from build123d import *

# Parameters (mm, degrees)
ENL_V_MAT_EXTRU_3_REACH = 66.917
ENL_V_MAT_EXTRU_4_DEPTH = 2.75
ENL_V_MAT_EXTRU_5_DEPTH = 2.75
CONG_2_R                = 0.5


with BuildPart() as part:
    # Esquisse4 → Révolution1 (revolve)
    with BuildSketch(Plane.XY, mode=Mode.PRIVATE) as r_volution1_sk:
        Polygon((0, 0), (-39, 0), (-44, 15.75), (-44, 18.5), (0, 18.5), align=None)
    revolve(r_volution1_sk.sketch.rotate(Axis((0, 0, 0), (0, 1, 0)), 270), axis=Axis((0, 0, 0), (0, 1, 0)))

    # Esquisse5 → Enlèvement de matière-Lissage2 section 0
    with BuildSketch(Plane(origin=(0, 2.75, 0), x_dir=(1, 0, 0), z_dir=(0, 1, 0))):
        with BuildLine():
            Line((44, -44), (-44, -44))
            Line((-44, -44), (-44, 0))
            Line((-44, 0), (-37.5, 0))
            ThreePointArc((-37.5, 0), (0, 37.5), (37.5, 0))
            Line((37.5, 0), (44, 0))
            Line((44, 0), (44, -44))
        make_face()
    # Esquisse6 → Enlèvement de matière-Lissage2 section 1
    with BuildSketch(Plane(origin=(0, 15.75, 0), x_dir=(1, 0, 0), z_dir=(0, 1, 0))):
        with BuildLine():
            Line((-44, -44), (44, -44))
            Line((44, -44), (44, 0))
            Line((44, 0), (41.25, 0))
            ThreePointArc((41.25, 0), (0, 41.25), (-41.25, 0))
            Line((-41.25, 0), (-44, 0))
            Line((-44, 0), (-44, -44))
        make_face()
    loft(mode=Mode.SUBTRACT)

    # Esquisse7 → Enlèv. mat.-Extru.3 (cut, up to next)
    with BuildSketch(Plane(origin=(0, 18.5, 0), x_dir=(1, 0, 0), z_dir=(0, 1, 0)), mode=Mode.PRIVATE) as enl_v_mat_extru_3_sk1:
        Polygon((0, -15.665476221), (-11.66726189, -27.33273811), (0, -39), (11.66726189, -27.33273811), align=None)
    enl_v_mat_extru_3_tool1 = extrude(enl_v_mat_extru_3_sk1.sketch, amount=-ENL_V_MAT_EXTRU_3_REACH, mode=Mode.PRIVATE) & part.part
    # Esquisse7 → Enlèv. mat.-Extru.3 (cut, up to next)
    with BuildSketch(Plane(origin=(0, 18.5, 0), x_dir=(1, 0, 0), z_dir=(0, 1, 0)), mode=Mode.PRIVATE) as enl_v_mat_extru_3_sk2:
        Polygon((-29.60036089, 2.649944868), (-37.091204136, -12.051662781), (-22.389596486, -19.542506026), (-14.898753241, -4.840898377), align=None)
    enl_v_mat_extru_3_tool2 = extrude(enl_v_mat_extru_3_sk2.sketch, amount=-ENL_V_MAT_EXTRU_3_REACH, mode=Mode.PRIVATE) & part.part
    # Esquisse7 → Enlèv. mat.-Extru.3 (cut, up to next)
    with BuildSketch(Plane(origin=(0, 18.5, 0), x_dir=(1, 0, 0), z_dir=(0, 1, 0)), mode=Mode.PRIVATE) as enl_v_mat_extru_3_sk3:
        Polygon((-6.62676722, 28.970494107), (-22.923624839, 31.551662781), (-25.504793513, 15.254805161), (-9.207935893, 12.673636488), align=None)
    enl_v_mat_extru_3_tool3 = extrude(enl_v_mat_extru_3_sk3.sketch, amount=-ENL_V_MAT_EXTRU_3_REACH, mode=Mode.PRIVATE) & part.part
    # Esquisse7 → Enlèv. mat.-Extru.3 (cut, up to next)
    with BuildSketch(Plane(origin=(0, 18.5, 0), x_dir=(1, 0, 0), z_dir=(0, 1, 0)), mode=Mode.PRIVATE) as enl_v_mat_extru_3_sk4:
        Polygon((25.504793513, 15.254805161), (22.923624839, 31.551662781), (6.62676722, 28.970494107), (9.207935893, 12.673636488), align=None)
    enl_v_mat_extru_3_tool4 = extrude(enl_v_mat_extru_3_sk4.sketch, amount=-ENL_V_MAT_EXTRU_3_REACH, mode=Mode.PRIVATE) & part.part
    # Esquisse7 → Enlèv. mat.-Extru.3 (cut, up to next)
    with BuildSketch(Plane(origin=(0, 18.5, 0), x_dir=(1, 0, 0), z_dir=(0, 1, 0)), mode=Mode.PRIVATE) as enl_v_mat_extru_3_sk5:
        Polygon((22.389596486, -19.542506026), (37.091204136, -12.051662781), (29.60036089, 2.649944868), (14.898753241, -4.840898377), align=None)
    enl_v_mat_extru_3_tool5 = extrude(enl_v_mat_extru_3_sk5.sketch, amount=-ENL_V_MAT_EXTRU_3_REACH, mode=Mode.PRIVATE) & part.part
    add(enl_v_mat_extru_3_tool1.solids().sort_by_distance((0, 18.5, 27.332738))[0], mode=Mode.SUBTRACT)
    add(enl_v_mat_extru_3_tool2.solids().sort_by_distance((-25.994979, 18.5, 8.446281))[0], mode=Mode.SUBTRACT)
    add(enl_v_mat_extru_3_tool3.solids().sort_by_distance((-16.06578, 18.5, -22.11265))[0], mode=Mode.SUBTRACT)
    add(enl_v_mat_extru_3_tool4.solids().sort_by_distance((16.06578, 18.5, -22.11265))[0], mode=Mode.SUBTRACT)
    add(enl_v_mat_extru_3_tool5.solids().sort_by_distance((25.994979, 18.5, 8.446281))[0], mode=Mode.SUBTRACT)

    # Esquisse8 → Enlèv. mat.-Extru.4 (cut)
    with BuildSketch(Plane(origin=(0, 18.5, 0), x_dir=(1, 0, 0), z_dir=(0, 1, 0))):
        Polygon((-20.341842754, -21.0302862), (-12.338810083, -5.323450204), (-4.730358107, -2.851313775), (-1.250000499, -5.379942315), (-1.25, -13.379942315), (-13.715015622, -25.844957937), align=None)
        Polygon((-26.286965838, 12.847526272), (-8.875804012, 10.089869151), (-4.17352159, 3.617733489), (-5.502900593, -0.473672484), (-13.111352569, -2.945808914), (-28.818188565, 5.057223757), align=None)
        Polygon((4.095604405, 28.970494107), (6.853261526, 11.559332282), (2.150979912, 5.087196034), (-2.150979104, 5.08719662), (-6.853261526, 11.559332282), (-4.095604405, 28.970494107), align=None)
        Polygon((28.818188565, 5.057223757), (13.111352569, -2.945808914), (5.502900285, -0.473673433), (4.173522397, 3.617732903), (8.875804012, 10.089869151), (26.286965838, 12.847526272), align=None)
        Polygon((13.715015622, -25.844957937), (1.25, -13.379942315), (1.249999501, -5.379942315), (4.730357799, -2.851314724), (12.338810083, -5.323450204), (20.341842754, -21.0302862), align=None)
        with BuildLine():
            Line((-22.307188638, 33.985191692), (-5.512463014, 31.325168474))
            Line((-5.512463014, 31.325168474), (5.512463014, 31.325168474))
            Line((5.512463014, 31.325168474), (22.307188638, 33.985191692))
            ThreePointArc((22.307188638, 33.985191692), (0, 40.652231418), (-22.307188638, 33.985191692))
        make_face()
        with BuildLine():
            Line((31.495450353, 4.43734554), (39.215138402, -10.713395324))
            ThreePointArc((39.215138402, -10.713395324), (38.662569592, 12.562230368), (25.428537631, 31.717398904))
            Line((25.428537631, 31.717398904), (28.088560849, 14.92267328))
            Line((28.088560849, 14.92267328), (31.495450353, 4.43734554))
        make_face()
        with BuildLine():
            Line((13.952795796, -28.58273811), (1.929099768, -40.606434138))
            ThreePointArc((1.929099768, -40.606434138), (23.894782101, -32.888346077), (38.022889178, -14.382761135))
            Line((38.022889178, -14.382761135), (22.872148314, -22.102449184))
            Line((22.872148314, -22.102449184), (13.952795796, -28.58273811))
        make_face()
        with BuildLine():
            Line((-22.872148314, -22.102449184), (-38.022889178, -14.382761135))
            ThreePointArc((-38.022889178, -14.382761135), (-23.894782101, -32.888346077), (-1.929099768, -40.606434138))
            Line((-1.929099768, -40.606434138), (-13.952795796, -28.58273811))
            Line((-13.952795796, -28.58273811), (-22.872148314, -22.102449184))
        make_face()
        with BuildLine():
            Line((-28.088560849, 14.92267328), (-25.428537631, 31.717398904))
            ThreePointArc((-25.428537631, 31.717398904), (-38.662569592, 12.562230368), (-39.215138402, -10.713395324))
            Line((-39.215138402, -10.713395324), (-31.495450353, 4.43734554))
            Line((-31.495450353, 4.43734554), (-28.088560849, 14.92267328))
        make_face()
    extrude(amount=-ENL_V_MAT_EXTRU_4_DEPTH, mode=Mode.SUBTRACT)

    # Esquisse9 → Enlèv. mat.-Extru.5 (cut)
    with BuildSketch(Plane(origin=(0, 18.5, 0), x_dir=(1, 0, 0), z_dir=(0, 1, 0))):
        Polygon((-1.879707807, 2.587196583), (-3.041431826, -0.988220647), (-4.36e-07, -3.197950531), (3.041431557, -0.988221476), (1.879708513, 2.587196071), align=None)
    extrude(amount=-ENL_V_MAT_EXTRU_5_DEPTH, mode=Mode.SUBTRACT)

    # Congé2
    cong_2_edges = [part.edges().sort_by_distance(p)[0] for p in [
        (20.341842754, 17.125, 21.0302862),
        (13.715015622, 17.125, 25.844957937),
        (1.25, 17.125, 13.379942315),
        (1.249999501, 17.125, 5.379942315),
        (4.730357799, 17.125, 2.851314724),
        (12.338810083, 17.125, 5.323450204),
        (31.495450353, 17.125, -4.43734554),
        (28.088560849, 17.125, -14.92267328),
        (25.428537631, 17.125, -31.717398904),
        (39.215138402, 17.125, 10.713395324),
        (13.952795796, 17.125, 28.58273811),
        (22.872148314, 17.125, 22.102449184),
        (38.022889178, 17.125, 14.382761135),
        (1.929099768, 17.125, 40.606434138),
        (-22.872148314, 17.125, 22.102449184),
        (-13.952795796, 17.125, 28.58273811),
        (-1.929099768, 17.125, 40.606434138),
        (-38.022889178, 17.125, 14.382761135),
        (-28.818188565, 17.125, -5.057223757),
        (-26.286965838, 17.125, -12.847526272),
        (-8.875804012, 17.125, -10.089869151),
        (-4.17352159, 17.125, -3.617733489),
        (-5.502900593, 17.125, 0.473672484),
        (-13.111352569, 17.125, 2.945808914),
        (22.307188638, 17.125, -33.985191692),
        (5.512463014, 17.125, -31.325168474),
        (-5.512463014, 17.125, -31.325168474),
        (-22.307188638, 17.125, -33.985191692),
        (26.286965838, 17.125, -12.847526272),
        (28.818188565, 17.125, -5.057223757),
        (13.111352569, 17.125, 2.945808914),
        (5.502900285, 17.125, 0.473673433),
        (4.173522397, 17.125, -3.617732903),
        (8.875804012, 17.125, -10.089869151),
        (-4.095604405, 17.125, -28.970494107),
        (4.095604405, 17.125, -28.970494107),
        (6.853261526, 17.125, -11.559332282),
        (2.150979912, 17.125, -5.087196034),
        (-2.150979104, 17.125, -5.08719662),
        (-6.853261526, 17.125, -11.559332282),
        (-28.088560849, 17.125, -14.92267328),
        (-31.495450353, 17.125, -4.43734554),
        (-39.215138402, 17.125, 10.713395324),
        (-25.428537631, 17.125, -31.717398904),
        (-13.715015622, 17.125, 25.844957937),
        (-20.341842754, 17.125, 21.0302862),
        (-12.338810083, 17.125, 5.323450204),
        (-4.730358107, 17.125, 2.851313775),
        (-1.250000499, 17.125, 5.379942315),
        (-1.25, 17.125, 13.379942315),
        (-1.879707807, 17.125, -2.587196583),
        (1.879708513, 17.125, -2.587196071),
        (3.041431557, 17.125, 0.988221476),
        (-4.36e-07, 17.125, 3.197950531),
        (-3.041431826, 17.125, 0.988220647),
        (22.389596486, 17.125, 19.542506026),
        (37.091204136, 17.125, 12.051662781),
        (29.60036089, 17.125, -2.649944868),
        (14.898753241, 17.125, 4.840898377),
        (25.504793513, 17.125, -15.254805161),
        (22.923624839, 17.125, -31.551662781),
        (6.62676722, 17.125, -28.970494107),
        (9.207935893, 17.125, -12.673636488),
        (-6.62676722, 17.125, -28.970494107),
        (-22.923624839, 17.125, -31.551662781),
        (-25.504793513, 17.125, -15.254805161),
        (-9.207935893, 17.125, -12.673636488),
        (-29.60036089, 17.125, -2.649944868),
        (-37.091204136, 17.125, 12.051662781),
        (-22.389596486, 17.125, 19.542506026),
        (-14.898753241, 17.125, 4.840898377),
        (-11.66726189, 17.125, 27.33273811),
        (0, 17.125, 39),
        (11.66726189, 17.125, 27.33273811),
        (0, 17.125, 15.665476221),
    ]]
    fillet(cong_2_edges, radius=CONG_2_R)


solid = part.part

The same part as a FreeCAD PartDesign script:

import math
import FreeCAD as App
import Part
import Sketcher
Q = App.Units.Quantity


def edges_at(feature, points):
    """Names of the edges that pass closest to the given points."""
    edges = feature.Shape.Edges
    near = lambda p: min(range(len(edges)), key=lambda i: edges[i].distToShape(Part.Vertex(*p))[0])
    return sorted({f"Edge{near(p) + 1}" for p in points})

doc = App.newDocument("Part")
body = doc.addObject("PartDesign::Body", "Body")

sketch1 = doc.addObject("Sketcher::SketchObject", "Sketch")
body.addObject(sketch1)
sketch1.AttachmentSupport = (doc.XY_Plane, [""])
sketch1.MapMode = "FlatFace"
sketch1.addGeometry([
    Part.LineSegment(App.Vector(-39, 0, 0), App.Vector(0, 0, 0)),
    Part.LineSegment(App.Vector(0, 0, 0), App.Vector(0, 18.5, 0)),
    Part.LineSegment(App.Vector(0, 18.5, 0), App.Vector(-44, 18.5, 0)),
    Part.LineSegment(App.Vector(-44, 18.5, 0), App.Vector(-44, 15.8, 0)),
    Part.LineSegment(App.Vector(-44, 15.8, 0), App.Vector(-39, 0, 0)),
], False)
sketch1.addConstraint([
    Sketcher.Constraint("Coincident", 0, 2, 1, 1),
    Sketcher.Constraint("Coincident", 1, 2, 2, 1),
    Sketcher.Constraint("Coincident", 2, 2, 3, 1),
    Sketcher.Constraint("Coincident", 3, 2, 4, 1),
    Sketcher.Constraint("Coincident", 4, 2, 0, 1),
    Sketcher.Constraint("Horizontal", 0),
    Sketcher.Constraint("Vertical", 1),
    Sketcher.Constraint("Horizontal", 2),
    Sketcher.Constraint("Vertical", 3),
    Sketcher.Constraint("Coincident", 0, 2, -1, 1),
    Sketcher.Constraint("DistanceX", 0, 1, 0, 2, Q("39 mm")),
    Sketcher.Constraint("DistanceX", 2, 2, 2, 1, Q("44 mm")),
    Sketcher.Constraint("DistanceY", 1, 1, 1, 2, Q("18.5 mm")),
    Sketcher.Constraint("DistanceY", 3, 2, 3, 1, Q("2.75 mm")),
])
revolution = doc.addObject("PartDesign::Revolution", "Revolution")
body.addObject(revolution)
revolution.Profile = sketch1
revolution.ReferenceAxis = (sketch1, ["V_Axis"])
revolution.Angle = 360

sketch2 = doc.addObject("Sketcher::SketchObject", "Sketch001")
body.addObject(sketch2)
sketch2.AttachmentSupport = (doc.XZ_Plane, [""])
sketch2.MapMode = "FlatFace"
sketch2.AttachmentOffset = App.Placement(App.Vector(0, 0, -2.75), App.Rotation())
sketch2.addGeometry([
    Part.LineSegment(App.Vector(-44, 44, 0), App.Vector(44, 44, 0)),
    Part.LineSegment(App.Vector(44, 44, 0), App.Vector(44, 0, 0)),
    Part.LineSegment(App.Vector(44, 0, 0), App.Vector(38, 0, 0)),
    Part.ArcOfCircle(Part.Circle(App.Vector(0, 0, 0), App.Vector(0, 0, 1), 38), math.radians(180), math.radians(360)),
    Part.LineSegment(App.Vector(-38, 0, 0), App.Vector(-44, 0, 0)),
    Part.LineSegment(App.Vector(-44, 0, 0), App.Vector(-44, 44, 0)),
], False)
sketch2.addConstraint([
    Sketcher.Constraint("Coincident", 0, 2, 1, 1),
    Sketcher.Constraint("Coincident", 1, 2, 2, 1),
    Sketcher.Constraint("Coincident", 2, 2, 3, 2),
    Sketcher.Constraint("Coincident", 3, 1, 4, 1),
    Sketcher.Constraint("Coincident", 4, 2, 5, 1),
    Sketcher.Constraint("Coincident", 5, 2, 0, 1),
    Sketcher.Constraint("Horizontal", 0),
    Sketcher.Constraint("Vertical", 1),
    Sketcher.Constraint("Horizontal", 2),
    Sketcher.Constraint("Horizontal", 4),
    Sketcher.Constraint("Vertical", 5),
    Sketcher.Constraint("Coincident", 3, 3, -1, 1),
    Sketcher.Constraint("Symmetric", 1, 2, 4, 2, -1, 1),
    Sketcher.Constraint("PointOnObject", 1, 2, -1),
    Sketcher.Constraint("Radius", 3, Q("37.5 mm")),
    Sketcher.Constraint("DistanceX", 0, 1, 0, 2, Q("88 mm")),
    Sketcher.Constraint("DistanceY", 1, 2, 1, 1, Q("44 mm")),
])

sketch3 = doc.addObject("Sketcher::SketchObject", "Sketch002")
body.addObject(sketch3)
sketch3.AttachmentSupport = (doc.XZ_Plane, [""])
sketch3.MapMode = "FlatFace"
sketch3.AttachmentOffset = App.Placement(App.Vector(0, 0, -15.75), App.Rotation())
sketch3.addGeometry([
    Part.LineSegment(App.Vector(-44, 44, 0), App.Vector(44, 44, 0)),
    Part.LineSegment(App.Vector(44, 44, 0), App.Vector(44, 0, 0)),
    Part.LineSegment(App.Vector(44, 0, 0), App.Vector(41.2, 0, 0)),
    Part.ArcOfCircle(Part.Circle(App.Vector(0, 0, 0), App.Vector(0, 0, 1), 41.2), math.radians(180), math.radians(360)),
    Part.LineSegment(App.Vector(-41.2, 0, 0), App.Vector(-44, 0, 0)),
    Part.LineSegment(App.Vector(-44, 0, 0), App.Vector(-44, 44, 0)),
], False)
sketch3.addConstraint([
    Sketcher.Constraint("Coincident", 0, 2, 1, 1),
    Sketcher.Constraint("Coincident", 1, 2, 2, 1),
    Sketcher.Constraint("Coincident", 2, 2, 3, 2),
    Sketcher.Constraint("Coincident", 3, 1, 4, 1),
    Sketcher.Constraint("Coincident", 4, 2, 5, 1),
    Sketcher.Constraint("Coincident", 5, 2, 0, 1),
    Sketcher.Constraint("Horizontal", 0),
    Sketcher.Constraint("Vertical", 1),
    Sketcher.Constraint("Horizontal", 2),
    Sketcher.Constraint("Horizontal", 4),
    Sketcher.Constraint("Vertical", 5),
    Sketcher.Constraint("Coincident", 3, 3, -1, 1),
    Sketcher.Constraint("Symmetric", 1, 2, 4, 2, -1, 1),
    Sketcher.Constraint("PointOnObject", 1, 2, -1),
    Sketcher.Constraint("DistanceX", 0, 1, 0, 2, Q("88 mm")),
    Sketcher.Constraint("DistanceY", 1, 2, 1, 1, Q("44 mm")),
    Sketcher.Constraint("Radius", 3, Q("41.25 mm")),
])

subtractiveloft = doc.addObject("PartDesign::SubtractiveLoft", "SubtractiveLoft")
body.addObject(subtractiveloft)
subtractiveloft.Profile = sketch2
subtractiveloft.Sections = [sketch3]

sketch4 = doc.addObject("Sketcher::SketchObject", "Sketch003")
body.addObject(sketch4)
sketch4.AttachmentSupport = (doc.XZ_Plane, [""])
sketch4.MapMode = "FlatFace"
sketch4.AttachmentOffset = App.Placement(App.Vector(0, 0, -18.5), App.Rotation())
sketch4.addGeometry([
    Part.LineSegment(App.Vector(0, 16, 0), App.Vector(-12, 27, 0)),
    Part.LineSegment(App.Vector(-12, 27, 0), App.Vector(0, 39, 0)),
    Part.LineSegment(App.Vector(0, 39, 0), App.Vector(12, 27, 0)),
    Part.LineSegment(App.Vector(12, 27, 0), App.Vector(0, 16, 0)),
], False)
sketch4.addConstraint([
    Sketcher.Constraint("Coincident", 0, 2, 1, 1),
    Sketcher.Constraint("Coincident", 1, 2, 2, 1),
    Sketcher.Constraint("Coincident", 2, 2, 3, 1),
    Sketcher.Constraint("Coincident", 3, 2, 0, 1),
    Sketcher.Constraint("Symmetric", 0, 2, 2, 2, -2),
    Sketcher.Constraint("PointOnObject", 1, 2, -2),
    Sketcher.Constraint("PointOnObject", 3, 2, -2),
    Sketcher.Constraint("Perpendicular", 0, 1),
    Sketcher.Constraint("Perpendicular", 1, 2),
    Sketcher.Constraint("DistanceY", -1, 1, 1, 2, Q("39 mm")),
    Sketcher.Constraint("Distance", 0, Q("16.5 mm")),
])
pocket1 = doc.addObject("PartDesign::Pocket", "Pocket")
body.addObject(pocket1)
pocket1.Profile = sketch4
pocket1.Type = "UpToFirst"
pocket1.Reversed = True

sketch5 = doc.addObject("Sketcher::SketchObject", "Sketch004")
body.addObject(sketch5)
sketch5.AttachmentSupport = (doc.XZ_Plane, [""])
sketch5.MapMode = "FlatFace"
sketch5.AttachmentOffset = App.Placement(App.Vector(0, 0, -18.5), App.Rotation())
sketch5.addGeometry([
    Part.LineSegment(App.Vector(-30, -3, 0), App.Vector(-37, 12, 0)),
    Part.LineSegment(App.Vector(-37, 12, 0), App.Vector(-22, 20, 0)),
    Part.LineSegment(App.Vector(-22, 20, 0), App.Vector(-15, 5, 0)),
    Part.LineSegment(App.Vector(-15, 5, 0), App.Vector(-30, -3, 0)),
], False)
sketch5.addConstraint([
    Sketcher.Constraint("Coincident", 0, 2, 1, 1),
    Sketcher.Constraint("Coincident", 1, 2, 2, 1),
    Sketcher.Constraint("Coincident", 2, 2, 3, 1),
    Sketcher.Constraint("Coincident", 3, 2, 0, 1),
    Sketcher.Constraint("Perpendicular", 0, 1),
    Sketcher.Constraint("Perpendicular", 1, 2),
    Sketcher.Constraint("Perpendicular", 2, 3),
    Sketcher.Constraint("Equal", 0, 1),
    Sketcher.Constraint("Angle", 0, Q("117 deg")),
    Sketcher.Constraint("Distance", 0, Q("16.5 mm")),
    Sketcher.Constraint("DistanceY", -1, 1, 2, 2, Q("4.840898 mm")),
    Sketcher.Constraint("DistanceX", 3, 2, -1, 1, Q("29.600361 mm")),
])
pocket2 = doc.addObject("PartDesign::Pocket", "Pocket001")
body.addObject(pocket2)
pocket2.Profile = sketch5
pocket2.Type = "UpToFirst"
pocket2.Reversed = True

sketch6 = doc.addObject("Sketcher::SketchObject", "Sketch005")
body.addObject(sketch6)
sketch6.AttachmentSupport = (doc.XZ_Plane, [""])
sketch6.MapMode = "FlatFace"
sketch6.AttachmentOffset = App.Placement(App.Vector(0, 0, -18.5), App.Rotation())
sketch6.addGeometry([
    Part.LineSegment(App.Vector(-7, -29, 0), App.Vector(-23, -32, 0)),
    Part.LineSegment(App.Vector(-23, -32, 0), App.Vector(-26, -15, 0)),
    Part.LineSegment(App.Vector(-26, -15, 0), App.Vector(-9, -13, 0)),
    Part.LineSegment(App.Vector(-9, -13, 0), App.Vector(-7, -29, 0)),
], False)
sketch6.addConstraint([
    Sketcher.Constraint("Coincident", 0, 2, 1, 1),
    Sketcher.Constraint("Coincident", 1, 2, 2, 1),
    Sketcher.Constraint("Coincident", 2, 2, 3, 1),
    Sketcher.Constraint("Coincident", 3, 2, 0, 1),
    Sketcher.Constraint("Perpendicular", 0, 1),
    Sketcher.Constraint("Perpendicular", 1, 2),
    Sketcher.Constraint("Perpendicular", 2, 3),
    Sketcher.Constraint("Equal", 0, 1),
    Sketcher.Constraint("Angle", 0, Q("-171 deg")),
    Sketcher.Constraint("Distance", 0, Q("16.5 mm")),
    Sketcher.Constraint("DistanceX", 0, 2, -1, 1, Q("22.923625 mm")),
    Sketcher.Constraint("DistanceY", 0, 2, -1, 1, Q("31.551663 mm")),
])
pocket3 = doc.addObject("PartDesign::Pocket", "Pocket002")
body.addObject(pocket3)
pocket3.Profile = sketch6
pocket3.Type = "UpToFirst"
pocket3.Reversed = True

sketch7 = doc.addObject("Sketcher::SketchObject", "Sketch006")
body.addObject(sketch7)
sketch7.AttachmentSupport = (doc.XZ_Plane, [""])
sketch7.MapMode = "FlatFace"
sketch7.AttachmentOffset = App.Placement(App.Vector(0, 0, -18.5), App.Rotation())
sketch7.addGeometry([
    Part.LineSegment(App.Vector(26, -15, 0), App.Vector(23, -32, 0)),
    Part.LineSegment(App.Vector(23, -32, 0), App.Vector(7, -29, 0)),
    Part.LineSegment(App.Vector(7, -29, 0), App.Vector(9, -13, 0)),
    Part.LineSegment(App.Vector(9, -13, 0), App.Vector(26, -15, 0)),
], False)
sketch7.addConstraint([
    Sketcher.Constraint("Coincident", 0, 2, 1, 1),
    Sketcher.Constraint("Coincident", 1, 2, 2, 1),
    Sketcher.Constraint("Coincident", 2, 2, 3, 1),
    Sketcher.Constraint("Coincident", 3, 2, 0, 1),
    Sketcher.Constraint("Perpendicular", 0, 1),
    Sketcher.Constraint("Perpendicular", 1, 2),
    Sketcher.Constraint("Perpendicular", 2, 3),
    Sketcher.Constraint("Equal", 0, 1),
    Sketcher.Constraint("Angle", 0, Q("-99 deg")),
    Sketcher.Constraint("Distance", 0, Q("16.5 mm")),
    Sketcher.Constraint("DistanceX", -1, 1, 0, 2, Q("22.923625 mm")),
    Sketcher.Constraint("DistanceY", 0, 2, -1, 1, Q("31.551663 mm")),
])
pocket4 = doc.addObject("PartDesign::Pocket", "Pocket003")
body.addObject(pocket4)
pocket4.Profile = sketch7
pocket4.Type = "UpToFirst"
pocket4.Reversed = True

sketch8 = doc.addObject("Sketcher::SketchObject", "Sketch007")
body.addObject(sketch8)
sketch8.AttachmentSupport = (doc.XZ_Plane, [""])
sketch8.MapMode = "FlatFace"
sketch8.AttachmentOffset = App.Placement(App.Vector(0, 0, -18.5), App.Rotation())
sketch8.addGeometry([
    Part.LineSegment(App.Vector(22, 20, 0), App.Vector(37, 12, 0)),
    Part.LineSegment(App.Vector(37, 12, 0), App.Vector(30, -3, 0)),
    Part.LineSegment(App.Vector(30, -3, 0), App.Vector(15, 5, 0)),
    Part.LineSegment(App.Vector(15, 5, 0), App.Vector(22, 20, 0)),
], False)
sketch8.addConstraint([
    Sketcher.Constraint("Coincident", 0, 2, 1, 1),
    Sketcher.Constraint("Coincident", 1, 2, 2, 1),
    Sketcher.Constraint("Coincident", 2, 2, 3, 1),
    Sketcher.Constraint("Coincident", 3, 2, 0, 1),
    Sketcher.Constraint("Perpendicular", 0, 1),
    Sketcher.Constraint("Perpendicular", 1, 2),
    Sketcher.Constraint("Perpendicular", 2, 3),
    Sketcher.Constraint("Equal", 0, 1),
    Sketcher.Constraint("Angle", 0, Q("-27 deg")),
    Sketcher.Constraint("Distance", 0, Q("16.5 mm")),
    Sketcher.Constraint("DistanceY", -1, 1, 2, 2, Q("4.840898 mm")),
    Sketcher.Constraint("DistanceX", -1, 1, 1, 2, Q("29.600361 mm")),
])
pocket5 = doc.addObject("PartDesign::Pocket", "Pocket004")
body.addObject(pocket5)
pocket5.Profile = sketch8
pocket5.Type = "UpToFirst"
pocket5.Reversed = True

sketch9 = doc.addObject("Sketcher::SketchObject", "Sketch008")
body.addObject(sketch9)
sketch9.AttachmentSupport = (doc.XZ_Plane, [""])
sketch9.MapMode = "FlatFace"
sketch9.AttachmentOffset = App.Placement(App.Vector(0, 0, -18.5), App.Rotation())
sketch9.addGeometry([
    Part.LineSegment(App.Vector(-12.3, 5.3, 0), App.Vector(-20.3, 21, 0)),
    Part.LineSegment(App.Vector(-20.3, 21, 0), App.Vector(-13.7, 25.8, 0)),
    Part.LineSegment(App.Vector(-13.7, 25.8, 0), App.Vector(-1.2, 13.4, 0)),
    Part.LineSegment(App.Vector(-1.2, 13.4, 0), App.Vector(-1.3, 5.4, 0)),
    Part.LineSegment(App.Vector(-1.3, 5.4, 0), App.Vector(-4.7, 2.9, 0)),
    Part.LineSegment(App.Vector(-4.7, 2.9, 0), App.Vector(-12.3, 5.3, 0)),
    Part.LineSegment(App.Vector(-8.9, -10.1, 0), App.Vector(-26.3, -12.8, 0)),
    Part.LineSegment(App.Vector(-26.3, -12.8, 0), App.Vector(-28.8, -5.1, 0)),
    Part.LineSegment(App.Vector(-28.8, -5.1, 0), App.Vector(-13.1, 2.9, 0)),
    Part.LineSegment(App.Vector(-13.1, 2.9, 0), App.Vector(-5.5, 0.5, 0)),
    Part.LineSegment(App.Vector(-5.5, 0.5, 0), App.Vector(-4.2, -3.6, 0)),
    Part.LineSegment(App.Vector(-4.2, -3.6, 0), App.Vector(-8.9, -10.1, 0)),
    Part.LineSegment(App.Vector(6.9, -11.6, 0), App.Vector(4.1, -29, 0)),
    Part.LineSegment(App.Vector(4.1, -29, 0), App.Vector(-4.1, -29, 0)),
    Part.LineSegment(App.Vector(-4.1, -29, 0), App.Vector(-6.9, -11.6, 0)),
    Part.LineSegment(App.Vector(-6.9, -11.6, 0), App.Vector(-2.2, -5.1, 0)),
    Part.LineSegment(App.Vector(-2.2, -5.1, 0), App.Vector(2.2, -5.1, 0)),
    Part.LineSegment(App.Vector(2.2, -5.1, 0), App.Vector(6.9, -11.6, 0)),
    Part.LineSegment(App.Vector(13.1, 2.9, 0), App.Vector(28.8, -5.1, 0)),
    Part.LineSegment(App.Vector(28.8, -5.1, 0), App.Vector(26.3, -12.8, 0)),
    Part.LineSegment(App.Vector(26.3, -12.8, 0), App.Vector(8.9, -10.1, 0)),
    Part.LineSegment(App.Vector(8.9, -10.1, 0), App.Vector(4.2, -3.6, 0)),
    Part.LineSegment(App.Vector(4.2, -3.6, 0), App.Vector(5.5, 0.5, 0)),
    Part.LineSegment(App.Vector(5.5, 0.5, 0), App.Vector(13.1, 2.9, 0)),
    Part.LineSegment(App.Vector(1.2, 13.4, 0), App.Vector(13.7, 25.8, 0)),
    Part.LineSegment(App.Vector(13.7, 25.8, 0), App.Vector(20.3, 21, 0)),
    Part.LineSegment(App.Vector(20.3, 21, 0), App.Vector(12.3, 5.3, 0)),
    Part.LineSegment(App.Vector(12.3, 5.3, 0), App.Vector(4.7, 2.9, 0)),
    Part.LineSegment(App.Vector(4.7, 2.9, 0), App.Vector(1.2, 5.4, 0)),
    Part.LineSegment(App.Vector(1.2, 5.4, 0), App.Vector(1.2, 13.4, 0)),
    Part.LineSegment(App.Vector(-22.3, -34, 0), App.Vector(-5.5, -31.3, 0)),
    Part.LineSegment(App.Vector(-5.5, -31.3, 0), App.Vector(5.5, -31.3, 0)),
    Part.LineSegment(App.Vector(5.5, -31.3, 0), App.Vector(22.3, -34, 0)),
    Part.ArcOfCircle(Part.Circle(App.Vector(0, 0, 0), App.Vector(0, 0, 1), 40.7), math.radians(-123), math.radians(-57)),
    Part.LineSegment(App.Vector(31.5, -4.4, 0), App.Vector(39.2, 10.7, 0)),
    Part.ArcOfCircle(Part.Circle(App.Vector(0, 0, 0), App.Vector(0, 0, 1), 40.7), math.radians(-51), math.radians(15)),
    Part.LineSegment(App.Vector(25.4, -31.7, 0), App.Vector(28.1, -14.9, 0)),
    Part.LineSegment(App.Vector(28.1, -14.9, 0), App.Vector(31.5, -4.4, 0)),
    Part.LineSegment(App.Vector(14, 28.6, 0), App.Vector(1.9, 40.6, 0)),
    Part.ArcOfCircle(Part.Circle(App.Vector(0, 0, 0), App.Vector(0, 0, 1), 40.7), math.radians(21), math.radians(87)),
    Part.LineSegment(App.Vector(38, 14.4, 0), App.Vector(22.9, 22.1, 0)),
    Part.LineSegment(App.Vector(22.9, 22.1, 0), App.Vector(14, 28.6, 0)),
    Part.LineSegment(App.Vector(-22.9, 22.1, 0), App.Vector(-38, 14.4, 0)),
    Part.ArcOfCircle(Part.Circle(App.Vector(0, 0, 0), App.Vector(0, 0, 1), 40.7), math.radians(93), math.radians(159)),
    Part.LineSegment(App.Vector(-1.9, 40.6, 0), App.Vector(-14, 28.6, 0)),
    Part.LineSegment(App.Vector(-14, 28.6, 0), App.Vector(-22.9, 22.1, 0)),
    Part.LineSegment(App.Vector(-28.1, -14.9, 0), App.Vector(-25.4, -31.7, 0)),
    Part.ArcOfCircle(Part.Circle(App.Vector(0, 0, 0), App.Vector(0, 0, 1), 40.7), math.radians(165), math.radians(231)),
    Part.LineSegment(App.Vector(-39.2, 10.7, 0), App.Vector(-31.5, -4.4, 0)),
    Part.LineSegment(App.Vector(-31.5, -4.4, 0), App.Vector(-28.1, -14.9, 0)),
], False)
sketch9.addConstraint([
    Sketcher.Constraint("Coincident", 0, 2, 1, 1),
    Sketcher.Constraint("Coincident", 1, 2, 2, 1),
    Sketcher.Constraint("Coincident", 2, 2, 3, 1),
    Sketcher.Constraint("Coincident", 3, 2, 4, 1),
    Sketcher.Constraint("Coincident", 4, 2, 5, 1),
    Sketcher.Constraint("Coincident", 5, 2, 0, 1),
    Sketcher.Constraint("Coincident", 6, 2, 7, 1),
    Sketcher.Constraint("Coincident", 7, 2, 8, 1),
    Sketcher.Constraint("Coincident", 8, 2, 9, 1),
    Sketcher.Constraint("Coincident", 9, 2, 10, 1),
    Sketcher.Constraint("Coincident", 10, 2, 11, 1),
    Sketcher.Constraint("Coincident", 11, 2, 6, 1),
    Sketcher.Constraint("Coincident", 12, 2, 13, 1),
    Sketcher.Constraint("Coincident", 13, 2, 14, 1),
    Sketcher.Constraint("Coincident", 14, 2, 15, 1),
    Sketcher.Constraint("Coincident", 15, 2, 16, 1),
    Sketcher.Constraint("Coincident", 16, 2, 17, 1),
    Sketcher.Constraint("Coincident", 17, 2, 12, 1),
    Sketcher.Constraint("Coincident", 18, 2, 19, 1),
    Sketcher.Constraint("Coincident", 19, 2, 20, 1),
    Sketcher.Constraint("Coincident", 20, 2, 21, 1),
    Sketcher.Constraint("Coincident", 21, 2, 22, 1),
    Sketcher.Constraint("Coincident", 22, 2, 23, 1),
    Sketcher.Constraint("Coincident", 23, 2, 18, 1),
    Sketcher.Constraint("Coincident", 24, 2, 25, 1),
    Sketcher.Constraint("Coincident", 25, 2, 26, 1),
    Sketcher.Constraint("Coincident", 26, 2, 27, 1),
    Sketcher.Constraint("Coincident", 27, 2, 28, 1),
    Sketcher.Constraint("Coincident", 28, 2, 29, 1),
    Sketcher.Constraint("Coincident", 29, 2, 24, 1),
    Sketcher.Constraint("Coincident", 30, 2, 31, 1),
    Sketcher.Constraint("Coincident", 31, 2, 32, 1),
    Sketcher.Constraint("Coincident", 32, 2, 33, 2),
    Sketcher.Constraint("Coincident", 33, 1, 30, 1),
    Sketcher.Constraint("Coincident", 34, 2, 35, 2),
    Sketcher.Constraint("Coincident", 35, 1, 36, 1),
    Sketcher.Constraint("Coincident", 36, 2, 37, 1),
    Sketcher.Constraint("Coincident", 37, 2, 34, 1),
    Sketcher.Constraint("Coincident", 38, 2, 39, 2),
    Sketcher.Constraint("Coincident", 39, 1, 40, 1),
    Sketcher.Constraint("Coincident", 40, 2, 41, 1),
    Sketcher.Constraint("Coincident", 41, 2, 38, 1),
    Sketcher.Constraint("Coincident", 42, 2, 43, 2),
    Sketcher.Constraint("Coincident", 43, 1, 44, 1),
    Sketcher.Constraint("Coincident", 44, 2, 45, 1),
    Sketcher.Constraint("Coincident", 45, 2, 42, 1),
    Sketcher.Constraint("Coincident", 46, 2, 47, 2),
    Sketcher.Constraint("Coincident", 47, 1, 48, 1),
    Sketcher.Constraint("Coincident", 48, 2, 49, 1),
    Sketcher.Constraint("Coincident", 49, 2, 46, 1),
    Sketcher.Constraint("Vertical", 3),
    Sketcher.Constraint("Horizontal", 13),
    Sketcher.Constraint("Horizontal", 16),
    Sketcher.Constraint("Vertical", 29),
    Sketcher.Constraint("Horizontal", 31),
    Sketcher.Constraint("Coincident", 33, 3, -1, 1),
    Sketcher.Constraint("Coincident", 35, 3, -1, 1),
    Sketcher.Constraint("Coincident", 39, 3, -1, 1),
    Sketcher.Constraint("Coincident", 43, 3, -1, 1),
    Sketcher.Constraint("Coincident", 47, 3, -1, 1),
    Sketcher.Constraint("Equal", 33, 35),
    Sketcher.Constraint("Equal", 35, 39),
    Sketcher.Constraint("Equal", 39, 43),
    Sketcher.Constraint("Equal", 43, 47),
    Sketcher.Constraint("Symmetric", 14, 2, 17, 2, -2),
    Sketcher.Constraint("Symmetric", 7, 2, 18, 2, -2),
    Sketcher.Constraint("Symmetric", 6, 2, 19, 2, -2),
    Sketcher.Constraint("Symmetric", 11, 2, 20, 2, -2),
    Sketcher.Constraint("Symmetric", 10, 2, 21, 2, -2),
    Sketcher.Constraint("Symmetric", 9, 2, 22, 2, -2),
    Sketcher.Constraint("Symmetric", 8, 2, 23, 2, -2),
    Sketcher.Constraint("Symmetric", 1, 2, 24, 2, -2),
    Sketcher.Constraint("Symmetric", 0, 2, 25, 2, -2),
    Sketcher.Constraint("Symmetric", 5, 2, 26, 2, -2),
    Sketcher.Constraint("Symmetric", 4, 2, 27, 2, -2),
    Sketcher.Constraint("Symmetric", 3, 2, 28, 2, -2),
    Sketcher.Constraint("Symmetric", 41, 2, 44, 2, -2),
    Sketcher.Constraint("Symmetric", 40, 2, 45, 2, -2),
    Sketcher.Constraint("Symmetric", 37, 2, 48, 2, -2),
    Sketcher.Constraint("Symmetric", 36, 2, 49, 2, -2),
    Sketcher.Constraint("Parallel", 1, 4),
    Sketcher.Constraint("Perpendicular", 0, 8),
    Sketcher.Constraint("Parallel", 5, 9),
    Sketcher.Constraint("Parallel", 7, 10),
    Sketcher.Constraint("Perpendicular", 6, 14),
    Sketcher.Constraint("Parallel", 11, 15),
    Sketcher.Constraint("Perpendicular", 4, 17),
    Sketcher.Constraint("Perpendicular", 9, 19),
    Sketcher.Constraint("Perpendicular", 12, 20),
    Sketcher.Constraint("Parallel", 17, 21),
    Sketcher.Constraint("Perpendicular", 2, 24),
    Sketcher.Constraint("Perpendicular", 14, 30),
    Sketcher.Constraint("Parallel", 20, 32),
    Sketcher.Constraint("Parallel", 26, 34),
    Sketcher.Constraint("Perpendicular", 32, 36),
    Sketcher.Constraint("Parallel", 22, 37),
    Sketcher.Constraint("Perpendicular", 24, 38),
    Sketcher.Constraint("Perpendicular", 34, 40),
    Sketcher.Constraint("Parallel", 28, 41),
    Sketcher.Constraint("Parallel", 8, 42),
    Sketcher.Constraint("Perpendicular", 38, 44),
    Sketcher.Constraint("Perpendicular", 30, 46),
    Sketcher.Constraint("Perpendicular", 42, 48),
    Sketcher.Constraint("Horizontal", 2, 2, 29, 2),
    Sketcher.Constraint("Horizontal", 32, 2, 33, 1),
    Sketcher.Constraint("Equal", 0, 2),
    Sketcher.Constraint("Equal", 2, 6),
    Sketcher.Constraint("Equal", 1, 7),
    Sketcher.Constraint("Equal", 6, 8),
    Sketcher.Constraint("Equal", 5, 9),
    Sketcher.Constraint("Equal", 4, 10),
    Sketcher.Constraint("Equal", 9, 11),
    Sketcher.Constraint("Equal", 8, 12),
    Sketcher.Constraint("Equal", 11, 15),
    Sketcher.Constraint("Equal", 32, 34),
    Sketcher.Constraint("Equal", 34, 36),
    Sketcher.Constraint("Equal", 36, 38),
    Sketcher.Constraint("Equal", 38, 40),
    Sketcher.Constraint("Equal", 37, 41),
    Sketcher.Constraint("DistanceY", 3, 2, 3, 1, Q("8 mm")),
    Sketcher.Constraint("Angle", 0, Q("117 deg")),
    Sketcher.Constraint("Angle", 1, Q("36 deg")),
    Sketcher.Constraint("DistanceX", 3, 2, 28, 2, Q("2.5 mm")),
    Sketcher.Constraint("Radius", 33, Q("40.652231 mm")),
    Sketcher.Constraint("DistanceY", 26, 2, 40, 2, Q("16.778999 mm")),
    Sketcher.Constraint("DistanceX", 13, 2, 13, 1, Q("8.191209 mm")),
    Sketcher.Constraint("DistanceX", 16, 1, 16, 2, Q("4.301959 mm")),
    Sketcher.Constraint("DistanceX", 9, 2, -1, 1, Q("5.502901 mm")),
    Sketcher.Constraint("DistanceY", 35, 1, -1, 1, Q("31.717399 mm")),
    Sketcher.Constraint("DistanceX", 11, 2, 13, 2, Q("4.7802 mm")),
    Sketcher.Constraint("DistanceY", 14, 2, 10, 2, Q("7.941599 mm")),
    Sketcher.Constraint("DistanceX", 14, 2, 30, 2, Q("1.340799 mm")),
    Sketcher.Constraint("DistanceY", 30, 2, 11, 2, Q("21.235299 mm")),
    Sketcher.Constraint("DistanceY", -1, 1, 5, 2, Q("5.32345 mm")),
])
pocket6 = doc.addObject("PartDesign::Pocket", "Pocket005")
body.addObject(pocket6)
pocket6.Profile = sketch9
pocket6.Length = 2.75
pocket6.Reversed = True

sketch10 = doc.addObject("Sketcher::SketchObject", "Sketch009")
body.addObject(sketch10)
sketch10.AttachmentSupport = (doc.XZ_Plane, [""])
sketch10.MapMode = "FlatFace"
sketch10.AttachmentOffset = App.Placement(App.Vector(0, 0, -18.5), App.Rotation())
sketch10.addGeometry([
    Part.LineSegment(App.Vector(-1.9, -2.6, 0), App.Vector(-3, 1, 0)),
    Part.LineSegment(App.Vector(-3, 1, 0), App.Vector(0, 3.2, 0)),
    Part.LineSegment(App.Vector(0, 3.2, 0), App.Vector(3, 1, 0)),
    Part.LineSegment(App.Vector(3, 1, 0), App.Vector(1.9, -2.6, 0)),
    Part.LineSegment(App.Vector(1.9, -2.6, 0), App.Vector(-1.9, -2.6, 0)),
], False)
sketch10.addConstraint([
    Sketcher.Constraint("Coincident", 0, 2, 1, 1),
    Sketcher.Constraint("Coincident", 1, 2, 2, 1),
    Sketcher.Constraint("Coincident", 2, 2, 3, 1),
    Sketcher.Constraint("Coincident", 3, 2, 4, 1),
    Sketcher.Constraint("Coincident", 4, 2, 0, 1),
    Sketcher.Constraint("Horizontal", 4),
    Sketcher.Constraint("Symmetric", 0, 2, 2, 2, -2),
    Sketcher.Constraint("PointOnObject", 1, 2, -2),
    Sketcher.Constraint("Equal", 0, 1),
    Sketcher.Constraint("Equal", 2, 3),
    Sketcher.Constraint("Angle", 0, Q("108.000008 deg")),
    Sketcher.Constraint("Angle", 1, Q("36.000008 deg")),
    Sketcher.Constraint("DistanceX", 4, 2, 4, 1, Q("3.759416 mm")),
    Sketcher.Constraint("DistanceY", -1, 1, 0, 2, Q("0.988221 mm")),
])
pocket7 = doc.addObject("PartDesign::Pocket", "Pocket006")
body.addObject(pocket7)
pocket7.Profile = sketch10
pocket7.Length = 2.75
pocket7.Reversed = True
doc.recompute()

fillet = doc.addObject("PartDesign::Fillet", "Fillet")
body.addObject(fillet)
fillet.Base = (pocket7, edges_at(pocket7, [
    (20.342, 17.125, 21.03),
    (13.715, 17.125, 25.845),
    (1.25, 17.125, 13.38),
    (1.25, 17.125, 5.38),
    (4.73, 17.125, 2.851),
    (12.339, 17.125, 5.323),
    (31.495, 17.125, -4.437),
    (28.089, 17.125, -14.923),
    (25.429, 17.125, -31.717),
    (39.215, 17.125, 10.713),
    (13.953, 17.125, 28.583),
    (22.872, 17.125, 22.102),
    (38.023, 17.125, 14.383),
    (1.929, 17.125, 40.606),
    (-22.872, 17.125, 22.102),
    (-13.953, 17.125, 28.583),
    (-1.929, 17.125, 40.606),
    (-38.023, 17.125, 14.383),
    (-28.818, 17.125, -5.057),
    (-26.287, 17.125, -12.848),
    (-8.876, 17.125, -10.09),
    (-4.174, 17.125, -3.618),
    (-5.503, 17.125, 0.474),
    (-13.111, 17.125, 2.946),
    (22.307, 17.125, -33.985),
    (5.512, 17.125, -31.325),
    (-5.512, 17.125, -31.325),
    (-22.307, 17.125, -33.985),
    (26.287, 17.125, -12.848),
    (28.818, 17.125, -5.057),
    (13.111, 17.125, 2.946),
    (5.503, 17.125, 0.474),
    (4.174, 17.125, -3.618),
    (8.876, 17.125, -10.09),
    (-4.096, 17.125, -28.97),
    (4.096, 17.125, -28.97),
    (6.853, 17.125, -11.559),
    (2.151, 17.125, -5.087),
    (-2.151, 17.125, -5.087),
    (-6.853, 17.125, -11.559),
    (-28.089, 17.125, -14.923),
    (-31.495, 17.125, -4.437),
    (-39.215, 17.125, 10.713),
    (-25.429, 17.125, -31.717),
    (-13.715, 17.125, 25.845),
    (-20.342, 17.125, 21.03),
    (-12.339, 17.125, 5.323),
    (-4.73, 17.125, 2.851),
    (-1.25, 17.125, 5.38),
    (-1.25, 17.125, 13.38),
    (-1.88, 17.125, -2.587),
    (1.88, 17.125, -2.587),
    (3.041, 17.125, 0.988),
    (0, 17.125, 3.198),
    (-3.041, 17.125, 0.988),
    (22.39, 17.125, 19.543),
    (37.091, 17.125, 12.052),
    (29.6, 17.125, -2.65),
    (14.899, 17.125, 4.841),
    (25.505, 17.125, -15.255),
    (22.924, 17.125, -31.552),
    (6.627, 17.125, -28.97),
    (9.208, 17.125, -12.674),
    (-6.627, 17.125, -28.97),
    (-22.924, 17.125, -31.552),
    (-25.505, 17.125, -15.255),
    (-9.208, 17.125, -12.674),
    (-29.6, 17.125, -2.65),
    (-37.091, 17.125, 12.052),
    (-22.39, 17.125, 19.543),
    (-14.899, 17.125, 4.841),
    (-11.667, 17.125, 27.333),
    (0, 17.125, 39),
    (11.667, 17.125, 27.333),
    (0, 17.125, 15.665),
]))
fillet.Radius = 0.5

doc.recompute()
